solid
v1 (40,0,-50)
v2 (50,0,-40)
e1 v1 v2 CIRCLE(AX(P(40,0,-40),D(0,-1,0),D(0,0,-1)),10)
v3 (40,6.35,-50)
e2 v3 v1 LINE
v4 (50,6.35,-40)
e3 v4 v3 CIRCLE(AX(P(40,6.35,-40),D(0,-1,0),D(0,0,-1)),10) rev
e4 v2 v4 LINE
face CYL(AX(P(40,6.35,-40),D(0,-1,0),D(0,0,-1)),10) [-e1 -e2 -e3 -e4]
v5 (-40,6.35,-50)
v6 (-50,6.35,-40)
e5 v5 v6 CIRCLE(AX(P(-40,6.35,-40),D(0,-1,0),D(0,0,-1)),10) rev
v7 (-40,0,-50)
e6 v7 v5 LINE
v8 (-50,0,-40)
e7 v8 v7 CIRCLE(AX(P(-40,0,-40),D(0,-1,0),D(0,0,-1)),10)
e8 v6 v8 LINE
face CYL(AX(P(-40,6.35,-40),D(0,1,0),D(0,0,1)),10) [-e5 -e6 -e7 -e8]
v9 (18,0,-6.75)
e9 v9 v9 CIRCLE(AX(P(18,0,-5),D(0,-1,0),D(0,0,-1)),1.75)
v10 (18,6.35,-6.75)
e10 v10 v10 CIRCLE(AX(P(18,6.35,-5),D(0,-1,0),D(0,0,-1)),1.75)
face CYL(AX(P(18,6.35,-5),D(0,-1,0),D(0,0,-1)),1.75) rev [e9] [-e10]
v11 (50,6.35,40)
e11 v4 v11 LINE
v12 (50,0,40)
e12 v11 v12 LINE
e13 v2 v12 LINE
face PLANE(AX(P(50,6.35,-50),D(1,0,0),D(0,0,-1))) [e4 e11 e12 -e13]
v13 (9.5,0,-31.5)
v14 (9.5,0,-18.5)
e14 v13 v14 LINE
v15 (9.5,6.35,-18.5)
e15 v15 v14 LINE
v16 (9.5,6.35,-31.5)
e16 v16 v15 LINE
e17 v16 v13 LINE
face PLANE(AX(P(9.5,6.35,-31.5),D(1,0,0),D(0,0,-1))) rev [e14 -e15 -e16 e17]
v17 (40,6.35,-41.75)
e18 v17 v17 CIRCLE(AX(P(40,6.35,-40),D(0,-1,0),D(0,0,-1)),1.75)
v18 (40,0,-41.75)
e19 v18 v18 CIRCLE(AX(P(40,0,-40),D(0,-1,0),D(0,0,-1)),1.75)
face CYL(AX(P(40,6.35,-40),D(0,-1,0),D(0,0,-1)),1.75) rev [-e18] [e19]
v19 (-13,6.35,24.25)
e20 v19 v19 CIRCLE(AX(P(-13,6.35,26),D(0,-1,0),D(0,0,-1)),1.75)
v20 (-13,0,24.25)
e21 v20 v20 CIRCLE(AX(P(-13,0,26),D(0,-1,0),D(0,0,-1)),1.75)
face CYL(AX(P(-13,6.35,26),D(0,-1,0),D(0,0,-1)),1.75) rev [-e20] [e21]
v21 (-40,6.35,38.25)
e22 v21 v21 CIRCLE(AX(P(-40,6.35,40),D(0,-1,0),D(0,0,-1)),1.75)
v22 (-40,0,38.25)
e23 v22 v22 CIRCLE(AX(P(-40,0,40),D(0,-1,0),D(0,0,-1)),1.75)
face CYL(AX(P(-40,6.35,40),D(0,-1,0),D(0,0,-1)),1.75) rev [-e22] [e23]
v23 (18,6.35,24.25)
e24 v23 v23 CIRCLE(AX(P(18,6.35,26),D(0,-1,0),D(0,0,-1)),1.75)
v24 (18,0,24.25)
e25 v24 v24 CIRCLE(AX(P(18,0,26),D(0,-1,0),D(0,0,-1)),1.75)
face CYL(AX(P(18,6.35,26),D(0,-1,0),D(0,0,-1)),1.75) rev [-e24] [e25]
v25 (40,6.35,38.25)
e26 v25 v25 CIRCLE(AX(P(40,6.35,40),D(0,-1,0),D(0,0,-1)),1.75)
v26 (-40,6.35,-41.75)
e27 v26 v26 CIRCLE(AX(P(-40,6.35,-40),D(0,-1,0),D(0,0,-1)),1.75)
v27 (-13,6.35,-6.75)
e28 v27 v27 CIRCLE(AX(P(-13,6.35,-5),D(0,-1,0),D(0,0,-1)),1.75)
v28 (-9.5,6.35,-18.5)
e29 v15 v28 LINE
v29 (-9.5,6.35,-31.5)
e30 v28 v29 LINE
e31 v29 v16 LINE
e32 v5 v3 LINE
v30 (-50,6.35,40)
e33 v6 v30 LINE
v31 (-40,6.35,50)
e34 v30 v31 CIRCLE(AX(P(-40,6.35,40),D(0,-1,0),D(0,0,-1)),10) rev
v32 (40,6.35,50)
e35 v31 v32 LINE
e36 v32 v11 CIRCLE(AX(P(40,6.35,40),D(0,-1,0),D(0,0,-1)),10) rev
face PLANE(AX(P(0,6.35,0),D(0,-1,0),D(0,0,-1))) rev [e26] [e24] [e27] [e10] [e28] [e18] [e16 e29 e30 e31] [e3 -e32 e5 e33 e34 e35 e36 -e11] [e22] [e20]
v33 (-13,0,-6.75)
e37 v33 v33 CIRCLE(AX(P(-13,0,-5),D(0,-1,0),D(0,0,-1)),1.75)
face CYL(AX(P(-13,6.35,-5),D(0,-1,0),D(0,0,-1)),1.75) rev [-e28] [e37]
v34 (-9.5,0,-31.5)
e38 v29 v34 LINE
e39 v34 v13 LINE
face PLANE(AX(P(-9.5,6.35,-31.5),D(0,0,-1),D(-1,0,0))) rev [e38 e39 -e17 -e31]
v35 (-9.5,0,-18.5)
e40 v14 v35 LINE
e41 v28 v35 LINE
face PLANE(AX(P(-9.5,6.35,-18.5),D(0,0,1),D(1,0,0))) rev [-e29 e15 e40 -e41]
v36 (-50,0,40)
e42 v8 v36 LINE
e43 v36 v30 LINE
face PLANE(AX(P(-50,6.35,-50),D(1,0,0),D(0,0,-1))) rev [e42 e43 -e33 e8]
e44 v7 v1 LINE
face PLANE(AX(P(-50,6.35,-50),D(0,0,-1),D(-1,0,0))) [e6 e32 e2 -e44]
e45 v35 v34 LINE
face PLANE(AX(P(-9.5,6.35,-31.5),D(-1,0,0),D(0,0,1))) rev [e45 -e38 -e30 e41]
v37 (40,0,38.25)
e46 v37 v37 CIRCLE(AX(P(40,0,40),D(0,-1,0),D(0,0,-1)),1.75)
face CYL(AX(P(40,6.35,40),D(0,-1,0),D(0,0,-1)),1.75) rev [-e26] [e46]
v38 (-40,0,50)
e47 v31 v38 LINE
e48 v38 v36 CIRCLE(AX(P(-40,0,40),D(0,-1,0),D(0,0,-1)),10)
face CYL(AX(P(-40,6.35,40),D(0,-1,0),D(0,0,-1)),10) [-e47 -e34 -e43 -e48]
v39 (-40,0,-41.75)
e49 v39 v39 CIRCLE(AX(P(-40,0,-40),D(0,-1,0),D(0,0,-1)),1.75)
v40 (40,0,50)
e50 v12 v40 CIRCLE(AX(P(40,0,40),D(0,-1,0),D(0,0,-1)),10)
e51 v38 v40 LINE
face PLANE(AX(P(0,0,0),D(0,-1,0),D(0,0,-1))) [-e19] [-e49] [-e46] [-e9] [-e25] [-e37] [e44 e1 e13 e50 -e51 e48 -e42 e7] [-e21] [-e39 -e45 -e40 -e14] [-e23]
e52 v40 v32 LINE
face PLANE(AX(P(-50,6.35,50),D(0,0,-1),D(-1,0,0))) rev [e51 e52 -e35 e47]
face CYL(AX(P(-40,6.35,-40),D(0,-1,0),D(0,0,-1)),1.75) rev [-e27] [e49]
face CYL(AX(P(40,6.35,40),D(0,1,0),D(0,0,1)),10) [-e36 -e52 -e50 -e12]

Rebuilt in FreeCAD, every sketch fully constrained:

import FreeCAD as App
import Part
import Sketcher

V = App.Vector


def edges_at(feature, points):
    """Names of the edges that pass closest to the given points."""
    edges = feature.Shape.Edges
    near = lambda p: min(range(len(edges)), key=lambda i: edges[i].distToShape(Part.Vertex(*p))[0])
    return sorted({f"Edge{near(p) + 1}" for p in points})


def add_polygon(sketch, points):
    """Adds a closed chain of lines whose ends are joined by coincident constraints."""
    first, n = sketch.GeometryCount, len(points)
    for a, b in zip(points, points[1:] + points[:1]):
        sketch.addGeometry(Part.LineSegment(App.Vector(*a, 0), App.Vector(*b, 0)), False)
    for i in range(n):
        sketch.addConstraint(Sketcher.Constraint("Coincident", first + i, 2, first + (i + 1) % n, 1))

doc = App.newDocument("Part")
body = doc.addObject("PartDesign::Body", "Body")

# Sketch on XZ plane
sketch1 = body.newObject("Sketcher::SketchObject", "Sketch")
sketch1.AttachmentSupport = (doc.getObject("XZ_Plane"), [""])
sketch1.MapMode = "FlatFace"
add_polygon(sketch1, [(-50, -50), (-50, 50), (50, 50), (50, -50)])  # lines 0-3
sketch1.addConstraint([
    Sketcher.Constraint("Vertical", 0),
    Sketcher.Constraint("Horizontal", 1),
    Sketcher.Constraint("Vertical", 2),
    Sketcher.Constraint("Horizontal", 3),
    Sketcher.Constraint("Symmetric", 0, 2, 2, 2, -1, 1),
    Sketcher.Constraint("Equal", 3, 0),
    Sketcher.Constraint("DistanceX", 1, 1, 1, 2, 100.0),
])
pad1 = body.newObject("PartDesign::Pad", "Pad")
pad1.Profile = sketch1
pad1.Length = 6.35
pad1.Reversed = True

# Sketch on XZ plane
sketch2 = body.newObject("Sketcher::SketchObject", "Sketch001")
sketch2.AttachmentSupport = (doc.getObject("XZ_Plane"), [""])
sketch2.MapMode = "FlatFace"
sketch2.addGeometry(Part.Circle(V(-40, -40, 0), V(0, 0, 1), 1.75), False)
sketch2.addConstraint([
    Sketcher.Constraint("Diameter", 0, 3.5),
    Sketcher.Constraint("DistanceX", 0, 3, -1, 1, 40.0),
    Sketcher.Constraint("DistanceY", 0, 3, -1, 1, 40.0),
])
pocket1 = body.newObject("PartDesign::Pocket", "Pocket")
pocket1.Profile = sketch2
pocket1.Type = "ThroughAll"
doc.recompute()

linearpattern = body.newObject("PartDesign::LinearPattern", "LinearPattern")
linearpattern.Originals = [pocket1]
linearpattern.Direction = (doc.getObject("Z_Axis"), [""])
linearpattern.Mode = "offset"
linearpattern.Offset = 80
linearpattern.Occurrences = 2
body.Tip = linearpattern
doc.recompute()

linearpattern2 = body.newObject("PartDesign::LinearPattern", "LinearPattern001")
linearpattern2.Originals = [pocket1]
linearpattern2.Direction = (doc.getObject("X_Axis"), [""])
linearpattern2.Mode = "offset"
linearpattern2.Offset = 80
linearpattern2.Occurrences = 2
body.Tip = linearpattern2

# Sketch on XZ plane
sketch3 = body.newObject("Sketcher::SketchObject", "Sketch002")
sketch3.AttachmentSupport = (doc.getObject("XZ_Plane"), [""])
sketch3.MapMode = "FlatFace"
sketch3.addGeometry(Part.Circle(V(40, 40, 0), V(0, 0, 1), 1.75), False)
sketch3.addConstraint([
    Sketcher.Constraint("Diameter", 0, 3.5),
    Sketcher.Constraint("DistanceX", -1, 1, 0, 3, 40.0),
    Sketcher.Constraint("DistanceY", -1, 1, 0, 3, 40.0),
])
pocket2 = body.newObject("PartDesign::Pocket", "Pocket001")
pocket2.Profile = sketch3
pocket2.Type = "ThroughAll"

# Sketch on XZ plane
sketch4 = body.newObject("Sketcher::SketchObject", "Sketch003")
sketch4.AttachmentSupport = (doc.getObject("XZ_Plane"), [""])
sketch4.MapMode = "FlatFace"
sketch4.addGeometry(Part.Circle(V(18, -5, 0), V(0, 0, 1), 1.75), False)
sketch4.addConstraint([
    Sketcher.Constraint("Diameter", 0, 3.5),
    Sketcher.Constraint("DistanceX", -1, 1, 0, 3, 18.0),
    Sketcher.Constraint("DistanceY", 0, 3, -1, 1, 5.0),
])
pocket3 = body.newObject("PartDesign::Pocket", "Pocket002")
pocket3.Profile = sketch4
pocket3.Type = "ThroughAll"
doc.recompute()

linearpattern3 = body.newObject("PartDesign::LinearPattern", "LinearPattern002")
linearpattern3.Originals = [pocket3]
linearpattern3.Direction = (doc.getObject("Z_Axis"), [""])
linearpattern3.Mode = "offset"
linearpattern3.Offset = 31
linearpattern3.Occurrences = 2
body.Tip = linearpattern3
doc.recompute()

linearpattern4 = body.newObject("PartDesign::LinearPattern", "LinearPattern003")
linearpattern4.Originals = [pocket3]
linearpattern4.Direction = (doc.getObject("X_Axis"), [""])
linearpattern4.Mode = "offset"
linearpattern4.Offset = 31
linearpattern4.Occurrences = 2
linearpattern4.Reversed = True
body.Tip = linearpattern4

# Sketch on XZ plane
sketch5 = body.newObject("Sketcher::SketchObject", "Sketch004")
sketch5.AttachmentSupport = (doc.getObject("XZ_Plane"), [""])
sketch5.MapMode = "FlatFace"
sketch5.addGeometry(Part.Circle(V(-13, 26, 0), V(0, 0, 1), 1.75), False)
sketch5.addConstraint([
    Sketcher.Constraint("Diameter", 0, 3.5),
    Sketcher.Constraint("DistanceX", 0, 3, -1, 1, 13.0),
    Sketcher.Constraint("DistanceY", -1, 1, 0, 3, 26.0),
])
pocket4 = body.newObject("PartDesign::Pocket", "Pocket003")
pocket4.Profile = sketch5
pocket4.Type = "ThroughAll"

# Sketch on XZ plane
sketch6 = body.newObject("Sketcher::SketchObject", "Sketch005")
sketch6.AttachmentSupport = (doc.getObject("XZ_Plane"), [""])
sketch6.MapMode = "FlatFace"
add_polygon(sketch6, [(-9.5, -18.5), (-9.5, -31.5), (9.5, -31.5), (9.5, -18.5)])  # lines 0-3
sketch6.addConstraint([
    Sketcher.Constraint("Vertical", 0),
    Sketcher.Constraint("Horizontal", 1),
    Sketcher.Constraint("Vertical", 2),
    Sketcher.Constraint("Horizontal", 3),
    Sketcher.Constraint("DistanceX", 1, 1, 1, 2, 19.0),
    Sketcher.Constraint("DistanceY", 0, 2, 0, 1, 13.0),
    Sketcher.Constraint("DistanceX", 0, 2, -1, 1, 9.5),
    Sketcher.Constraint("DistanceY", 0, 2, -1, 1, 31.5),
])
pocket5 = body.newObject("PartDesign::Pocket", "Pocket004")
pocket5.Profile = sketch6
pocket5.Type = "ThroughAll"
doc.recompute()

fillet = body.newObject("PartDesign::Fillet", "Fillet")
fillet.Base = (pocket5, edges_at(pocket5, [
    (-50, 3.175, -50),
    (-50, 3.175, 50),
    (50, 3.175, 50),
    (50, 3.175, -50),
]))
fillet.Radius = 10

doc.recompute()
